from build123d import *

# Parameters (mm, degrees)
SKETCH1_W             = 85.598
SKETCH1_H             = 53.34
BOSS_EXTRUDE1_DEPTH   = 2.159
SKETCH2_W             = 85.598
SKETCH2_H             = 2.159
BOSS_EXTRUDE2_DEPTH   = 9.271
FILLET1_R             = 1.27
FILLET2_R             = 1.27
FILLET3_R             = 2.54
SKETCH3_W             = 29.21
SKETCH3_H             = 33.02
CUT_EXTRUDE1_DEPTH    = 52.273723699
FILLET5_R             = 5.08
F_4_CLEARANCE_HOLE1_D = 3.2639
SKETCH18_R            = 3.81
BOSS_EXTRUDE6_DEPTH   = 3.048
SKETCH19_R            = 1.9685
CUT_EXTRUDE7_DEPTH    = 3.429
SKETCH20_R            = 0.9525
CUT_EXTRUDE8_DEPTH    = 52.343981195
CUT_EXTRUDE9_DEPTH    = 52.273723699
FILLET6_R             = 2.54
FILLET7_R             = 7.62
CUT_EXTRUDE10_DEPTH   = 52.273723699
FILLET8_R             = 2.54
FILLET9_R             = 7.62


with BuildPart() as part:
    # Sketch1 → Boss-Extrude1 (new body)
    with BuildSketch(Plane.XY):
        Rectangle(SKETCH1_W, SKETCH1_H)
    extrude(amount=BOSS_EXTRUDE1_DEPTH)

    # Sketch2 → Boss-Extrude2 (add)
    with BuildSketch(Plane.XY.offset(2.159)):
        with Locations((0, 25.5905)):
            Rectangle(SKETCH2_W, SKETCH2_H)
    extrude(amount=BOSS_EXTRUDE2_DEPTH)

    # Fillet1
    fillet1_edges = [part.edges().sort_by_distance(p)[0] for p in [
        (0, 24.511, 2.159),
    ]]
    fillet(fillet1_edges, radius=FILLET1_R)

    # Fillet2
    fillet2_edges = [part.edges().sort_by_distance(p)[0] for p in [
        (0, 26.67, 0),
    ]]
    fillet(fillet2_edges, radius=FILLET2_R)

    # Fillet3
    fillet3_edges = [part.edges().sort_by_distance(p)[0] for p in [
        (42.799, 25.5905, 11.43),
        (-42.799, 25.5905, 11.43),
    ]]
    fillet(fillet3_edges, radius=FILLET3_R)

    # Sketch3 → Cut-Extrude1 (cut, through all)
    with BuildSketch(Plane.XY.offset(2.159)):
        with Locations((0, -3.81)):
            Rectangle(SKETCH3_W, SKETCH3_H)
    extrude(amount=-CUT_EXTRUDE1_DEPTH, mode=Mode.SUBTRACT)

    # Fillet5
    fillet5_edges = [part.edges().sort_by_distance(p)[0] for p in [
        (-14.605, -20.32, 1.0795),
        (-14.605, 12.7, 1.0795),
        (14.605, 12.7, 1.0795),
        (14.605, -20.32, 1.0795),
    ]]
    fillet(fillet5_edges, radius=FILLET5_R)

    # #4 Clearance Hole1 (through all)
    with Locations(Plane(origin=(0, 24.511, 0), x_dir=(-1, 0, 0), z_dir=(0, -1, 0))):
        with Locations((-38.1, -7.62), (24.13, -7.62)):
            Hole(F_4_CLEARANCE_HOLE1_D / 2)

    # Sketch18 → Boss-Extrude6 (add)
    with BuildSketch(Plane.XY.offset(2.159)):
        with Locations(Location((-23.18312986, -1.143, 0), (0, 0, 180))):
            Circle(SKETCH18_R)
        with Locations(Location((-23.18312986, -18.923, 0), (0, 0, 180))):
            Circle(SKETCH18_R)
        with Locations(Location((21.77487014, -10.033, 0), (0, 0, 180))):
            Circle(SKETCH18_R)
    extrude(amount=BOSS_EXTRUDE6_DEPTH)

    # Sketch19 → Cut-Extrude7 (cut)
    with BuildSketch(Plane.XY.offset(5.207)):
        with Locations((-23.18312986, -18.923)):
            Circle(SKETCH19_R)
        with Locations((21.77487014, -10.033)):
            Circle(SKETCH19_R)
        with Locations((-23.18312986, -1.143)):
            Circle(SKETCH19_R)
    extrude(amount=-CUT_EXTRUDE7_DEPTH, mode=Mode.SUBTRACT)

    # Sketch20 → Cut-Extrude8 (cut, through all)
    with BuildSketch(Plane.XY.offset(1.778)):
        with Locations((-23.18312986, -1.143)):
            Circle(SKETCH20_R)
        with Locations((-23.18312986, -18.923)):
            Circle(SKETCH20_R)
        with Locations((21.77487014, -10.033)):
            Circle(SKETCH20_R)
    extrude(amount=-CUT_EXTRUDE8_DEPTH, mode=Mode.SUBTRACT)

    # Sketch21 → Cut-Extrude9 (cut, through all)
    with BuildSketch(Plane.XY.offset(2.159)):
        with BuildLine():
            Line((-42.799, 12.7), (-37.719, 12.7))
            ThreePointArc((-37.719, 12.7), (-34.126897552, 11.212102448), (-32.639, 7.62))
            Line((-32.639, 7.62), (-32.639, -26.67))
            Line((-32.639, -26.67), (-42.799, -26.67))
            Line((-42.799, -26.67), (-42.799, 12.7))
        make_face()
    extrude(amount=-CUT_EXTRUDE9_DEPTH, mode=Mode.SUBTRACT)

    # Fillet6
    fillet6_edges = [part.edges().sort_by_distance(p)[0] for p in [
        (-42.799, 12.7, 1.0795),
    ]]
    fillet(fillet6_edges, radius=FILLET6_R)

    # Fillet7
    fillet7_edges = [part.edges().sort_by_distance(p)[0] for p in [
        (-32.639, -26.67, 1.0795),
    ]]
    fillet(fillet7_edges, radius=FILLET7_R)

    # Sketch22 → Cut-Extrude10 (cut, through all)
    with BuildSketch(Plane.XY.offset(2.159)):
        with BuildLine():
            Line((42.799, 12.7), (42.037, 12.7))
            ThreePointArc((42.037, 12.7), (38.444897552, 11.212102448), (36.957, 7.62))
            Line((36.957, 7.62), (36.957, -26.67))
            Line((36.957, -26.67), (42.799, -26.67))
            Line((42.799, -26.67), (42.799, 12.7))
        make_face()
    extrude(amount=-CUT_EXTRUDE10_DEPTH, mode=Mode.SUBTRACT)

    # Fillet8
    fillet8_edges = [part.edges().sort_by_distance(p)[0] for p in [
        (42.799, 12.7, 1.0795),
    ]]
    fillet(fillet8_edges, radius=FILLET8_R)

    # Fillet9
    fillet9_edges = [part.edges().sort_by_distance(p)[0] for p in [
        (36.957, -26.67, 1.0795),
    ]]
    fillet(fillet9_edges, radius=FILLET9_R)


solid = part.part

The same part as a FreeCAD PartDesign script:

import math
import FreeCAD as App
import Part
import Sketcher
from FreeCAD import Vector
Q = App.Units.Quantity


def edges_at(feature, points):
    """Names of the edges that pass closest to the given points."""
    edges = feature.Shape.Edges
    near = lambda p: min(range(len(edges)), key=lambda i: edges[i].distToShape(Part.Vertex(*p))[0])
    return sorted({f"Edge{near(p) + 1}" for p in points})


def add_polygon(sketch, points):
    """Adds a closed chain of lines whose ends are joined by coincident constraints."""
    first, n = sketch.GeometryCount, len(points)
    for a, b in zip(points, points[1:] + points[:1]):
        sketch.addGeometry(Part.LineSegment(App.Vector(*a, 0), App.Vector(*b, 0)), False)
    for i in range(n):
        sketch.addConstraint(Sketcher.Constraint("Coincident", first + i, 2, first + (i + 1) % n, 1))

doc = App.newDocument("Part")
body = doc.addObject("PartDesign::Body", "Body")

# Sketch on XY plane
sketch1 = body.newObject("Sketcher::SketchObject", "Sketch")
sketch1.AttachmentSupport = (doc.getObject("XY_Plane"), [""])
sketch1.MapMode = "FlatFace"
add_polygon(sketch1, [(-43, 27), (-43, -27), (43, -27), (43, 27)])  # lines 0-3
sketch1.addConstraint([
    Sketcher.Constraint("Vertical", 0),
    Sketcher.Constraint("Horizontal", 1),
    Sketcher.Constraint("Vertical", 2),
    Sketcher.Constraint("Horizontal", 3),
    Sketcher.Constraint("Symmetric", 0, 2, 2, 2, -1, 1),
    Sketcher.Constraint("DistanceY", 0, 2, 0, 1, Q("2.1 in")),
    Sketcher.Constraint("DistanceX", 1, 1, 1, 2, Q("3.37 in")),
])
pad1 = body.newObject("PartDesign::Pad", "Pad")
pad1.Profile = sketch1
pad1.Length = Q("0.085 in")

# Sketch on XY plane
sketch2 = body.newObject("Sketcher::SketchObject", "Sketch001")
sketch2.AttachmentSupport = (doc.getObject("XY_Plane"), [""])
sketch2.MapMode = "FlatFace"
sketch2.AttachmentOffset = App.Placement(Vector(0, 0, 0.085 * 25.4), App.Rotation())
add_polygon(sketch2, [(-42.8, 26.7), (-42.8, 24.5), (42.8, 24.5), (42.8, 26.7)])  # lines 0-3
sketch2.addConstraint([
    Sketcher.Constraint("Vertical", 0),
    Sketcher.Constraint("Horizontal", 1),
    Sketcher.Constraint("Vertical", 2),
    Sketcher.Constraint("Horizontal", 3),
    Sketcher.Constraint("DistanceX", 1, 1, 1, 2, Q("3.37 in")),
    Sketcher.Constraint("DistanceY", 0, 2, 0, 1, Q("0.085 in")),
    Sketcher.Constraint("DistanceY", -1, 1, 2, 2, Q("1.05 in")),
    Sketcher.Constraint("DistanceX", 0, 2, -1, 1, Q("1.685 in")),
])
pad2 = body.newObject("PartDesign::Pad", "Pad001")
pad2.Profile = sketch2
pad2.Length = Q("0.365 in")
doc.recompute()

fillet = body.newObject("PartDesign::Fillet", "Fillet")
fillet.Base = (pad2, edges_at(pad2, [(0, 24.511, 2.159)]))
fillet.Radius = Q("0.05 in")
doc.recompute()

fillet2 = body.newObject("PartDesign::Fillet", "Fillet001")
fillet2.Base = (fillet, edges_at(fillet, [(0, 26.67, 0)]))
fillet2.Radius = Q("0.05 in")
doc.recompute()

fillet3 = body.newObject("PartDesign::Fillet", "Fillet002")
fillet3.Base = (fillet2, edges_at(fillet2, [(42.799, 25.59, 11.43), (-42.799, 25.59, 11.43)]))
fillet3.Radius = Q("0.1 in")

# Sketch on XY plane
sketch3 = body.newObject("Sketcher::SketchObject", "Sketch002")
sketch3.AttachmentSupport = (doc.getObject("XY_Plane"), [""])
sketch3.MapMode = "FlatFace"
sketch3.AttachmentOffset = App.Placement(Vector(0, 0, 0.085 * 25.4), App.Rotation())
add_polygon(sketch3, [(-15, 13), (-15, -20), (15, -20), (15, 13)])  # lines 0-3
sketch3.addConstraint([
    Sketcher.Constraint("Vertical", 0),
    Sketcher.Constraint("Horizontal", 1),
    Sketcher.Constraint("Vertical", 2),
    Sketcher.Constraint("Horizontal", 3),
    Sketcher.Constraint("DistanceY", 0, 2, 0, 1, Q("1.3 in")),
    Sketcher.Constraint("DistanceX", 1, 1, 1, 2, Q("1.15 in")),
    Sketcher.Constraint("DistanceY", 0, 2, -1, 1, Q("0.8 in")),
    Sketcher.Constraint("DistanceX", 0, 2, -1, 1, Q("0.575 in")),
])
pocket1 = body.newObject("PartDesign::Pocket", "Pocket")
pocket1.Profile = sketch3
pocket1.Type = "ThroughAll"
doc.recompute()

fillet4 = body.newObject("PartDesign::Fillet", "Fillet003")
fillet4.Base = (pocket1, edges_at(pocket1, [
    (-14.605, -20.32, 1.079),
    (-14.605, 12.7, 1.079),
    (14.605, 12.7, 1.079),
    (14.605, -20.32, 1.079),
]))
fillet4.Radius = Q("0.2 in")

# Sketch on XZ plane
sketch4 = body.newObject("Sketcher::SketchObject", "Sketch003")
sketch4.AttachmentSupport = (doc.getObject("XZ_Plane"), [""])
sketch4.MapMode = "FlatFace"
sketch4.AttachmentOffset = App.Placement(Vector(0, 0, -0.965 * 25.4), App.Rotation())
sketch4.addGeometry([
    Part.Circle(Vector(38.1, 7.6, 0), Vector(0, 0, 1), 1.6),
    Part.Circle(Vector(-24.1, 7.6, 0), Vector(0, 0, 1), 1.6),
], False)
sketch4.addConstraint([
    Sketcher.Constraint("Equal", 0, 1),
    Sketcher.Constraint("Horizontal", 0, 3, 1, 3),
    Sketcher.Constraint("Diameter", 0, Q("0.1285 in")),
    Sketcher.Constraint("DistanceX", -1, 1, 0, 3, Q("1.5 in")),
    Sketcher.Constraint("DistanceY", -1, 1, 0, 3, Q("0.3 in")),
    Sketcher.Constraint("DistanceX", 1, 3, -1, 1, Q("0.95 in")),
])
doc.recompute()
hole = body.newObject("PartDesign::Hole", "Hole")
hole.Profile = sketch4
hole.ThreadType = "None"
hole.Diameter = Q("0.1285 in")
hole.DepthType = "ThroughAll"

# Sketch on XY plane
sketch5 = body.newObject("Sketcher::SketchObject", "Sketch004")
sketch5.AttachmentSupport = (doc.getObject("XY_Plane"), [""])
sketch5.MapMode = "FlatFace"
sketch5.AttachmentOffset = App.Placement(Vector(0, 0, 0.085 * 25.4), App.Rotation())
sketch5.addGeometry([
    Part.Circle(Vector(-23.2, -1.1, 0), Vector(0, 0, 1), 3.8),
    Part.Circle(Vector(-23.2, -18.9, 0), Vector(0, 0, 1), 3.8),
    Part.Circle(Vector(21.8, -10, 0), Vector(0, 0, 1), 3.8),
], False)
sketch5.addConstraint([
    Sketcher.Constraint("Equal", 0, 1),
    Sketcher.Constraint("Equal", 1, 2),
    Sketcher.Constraint("Vertical", 0, 3, 1, 3),
    Sketcher.Constraint("Diameter", 0, Q("0.3 in")),
    Sketcher.Constraint("DistanceY", 1, 3, 0, 3, Q("0.7 in")),
    Sketcher.Constraint("DistanceX", 0, 3, 2, 3, Q("1.77 in")),
    Sketcher.Constraint("DistanceY", 2, 3, 0, 3, Q("0.35 in")),
    Sketcher.Constraint("DistanceY", 0, 3, -1, 1, Q("0.045 in")),
    Sketcher.Constraint("DistanceX", 0, 3, -1, 1, 23.18313),
])
pad3 = body.newObject("PartDesign::Pad", "Pad002")
pad3.Profile = sketch5
pad3.Length = Q("0.12 in")

# Sketch on XY plane
sketch6 = body.newObject("Sketcher::SketchObject", "Sketch005")
sketch6.AttachmentSupport = (doc.getObject("XY_Plane"), [""])
sketch6.MapMode = "FlatFace"
sketch6.AttachmentOffset = App.Placement(Vector(0, 0, 0.205 * 25.4), App.Rotation())
sketch6.addGeometry([
    Part.Circle(Vector(-23.2, -18.9, 0), Vector(0, 0, 1), 2),
    Part.Circle(Vector(21.8, -10, 0), Vector(0, 0, 1), 2),
    Part.Circle(Vector(-23.2, -1.1, 0), Vector(0, 0, 1), 2),
], False)
sketch6.addConstraint([
    Sketcher.Constraint("Equal", 0, 1),
    Sketcher.Constraint("Equal", 1, 2),
    Sketcher.Constraint("Vertical", 0, 3, 2, 3),
    Sketcher.Constraint("Diameter", 0, Q("0.155 in")),
    Sketcher.Constraint("DistanceY", 0, 3, 2, 3, Q("0.7 in")),
    Sketcher.Constraint("DistanceX", 0, 3, 1, 3, Q("1.77 in")),
    Sketcher.Constraint("DistanceY", 0, 3, 1, 3, Q("0.35 in")),
    Sketcher.Constraint("DistanceY", 0, 3, -1, 1, Q("0.745 in")),
    Sketcher.Constraint("DistanceX", 0, 3, -1, 1, 23.18313),
])
pocket2 = body.newObject("PartDesign::Pocket", "Pocket001")
pocket2.Profile = sketch6
pocket2.Length = Q("0.135 in")

# Sketch on XY plane
sketch7 = body.newObject("Sketcher::SketchObject", "Sketch006")
sketch7.AttachmentSupport = (doc.getObject("XY_Plane"), [""])
sketch7.MapMode = "FlatFace"
sketch7.AttachmentOffset = App.Placement(Vector(0, 0, 0.07 * 25.4), App.Rotation())
sketch7.addGeometry([
    Part.Circle(Vector(-23.2, -1.1, 0), Vector(0, 0, 1), 1),
    Part.Circle(Vector(-23.2, -18.9, 0), Vector(0, 0, 1), 1),
    Part.Circle(Vector(21.8, -10, 0), Vector(0, 0, 1), 1),
], False)
sketch7.addConstraint([
    Sketcher.Constraint("Equal", 0, 1),
    Sketcher.Constraint("Equal", 1, 2),
    Sketcher.Constraint("Vertical", 0, 3, 1, 3),
    Sketcher.Constraint("Diameter", 0, Q("0.075 in")),
    Sketcher.Constraint("DistanceY", 1, 3, 0, 3, Q("0.7 in")),
    Sketcher.Constraint("DistanceX", 0, 3, 2, 3, Q("1.77 in")),
    Sketcher.Constraint("DistanceY", 2, 3, 0, 3, Q("0.35 in")),
    Sketcher.Constraint("DistanceY", 0, 3, -1, 1, Q("0.045 in")),
    Sketcher.Constraint("DistanceX", 0, 3, -1, 1, 23.18313),
])
pocket3 = body.newObject("PartDesign::Pocket", "Pocket002")
pocket3.Profile = sketch7
pocket3.Type = "ThroughAll"

# Sketch on XY plane
sketch8 = body.newObject("Sketcher::SketchObject", "Sketch007")
sketch8.AttachmentSupport = (doc.getObject("XY_Plane"), [""])
sketch8.MapMode = "FlatFace"
sketch8.AttachmentOffset = App.Placement(Vector(0, 0, 0.085 * 25.4), App.Rotation())
sketch8.addGeometry([
    Part.LineSegment(Vector(-38, 13, 0), Vector(-43, 13, 0)),  # 0
    Part.LineSegment(Vector(-43, 13, 0), Vector(-43, -27, 0)),  # 1
    Part.LineSegment(Vector(-43, -27, 0), Vector(-33, -27, 0)),  # 2
    Part.LineSegment(Vector(-33, -27, 0), Vector(-33, 8, 0)),  # 3
    Part.ArcOfCircle(Part.Circle(Vector(-38, 8, 0), Vector(0, 0, 1), 5), math.radians(0), math.radians(90)),  # 4
], False)
sketch8.addConstraint([
    Sketcher.Constraint("Coincident", 0, 2, 1, 1),
    Sketcher.Constraint("Coincident", 1, 2, 2, 1),
    Sketcher.Constraint("Coincident", 2, 2, 3, 1),
    Sketcher.Constraint("Tangent", 3, 2, 4, 1),
    Sketcher.Constraint("Tangent", 4, 2, 0, 1),
    Sketcher.Constraint("Horizontal", 0),
    Sketcher.Constraint("Vertical", 1),
    Sketcher.Constraint("Horizontal", 2),
    Sketcher.Constraint("Vertical", 3),
    Sketcher.Constraint("Radius", 4, Q("0.2 in")),
    Sketcher.Constraint("DistanceX", 0, 2, 0, 1, Q("0.2 in")),
    Sketcher.Constraint("DistanceY", 1, 2, 1, 1, Q("1.55 in")),
    Sketcher.Constraint("DistanceY", -1, 1, 4, 3, Q("0.3 in")),
    Sketcher.Constraint("DistanceX", 4, 3, -1, 1, Q("1.485 in")),
])
pocket4 = body.newObject("PartDesign::Pocket", "Pocket003")
pocket4.Profile = sketch8
pocket4.Type = "ThroughAll"
doc.recompute()

fillet5 = body.newObject("PartDesign::Fillet", "Fillet004")
fillet5.Base = (pocket4, edges_at(pocket4, [(-42.799, 12.7, 1.079)]))
fillet5.Radius = Q("0.1 in")
doc.recompute()

fillet6 = body.newObject("PartDesign::Fillet", "Fillet005")
fillet6.Base = (fillet5, edges_at(fillet5, [(-32.639, -26.67, 1.079)]))
fillet6.Radius = Q("0.3 in")

# Sketch on XY plane
sketch9 = body.newObject("Sketcher::SketchObject", "Sketch008")
sketch9.AttachmentSupport = (doc.getObject("XY_Plane"), [""])
sketch9.MapMode = "FlatFace"
sketch9.AttachmentOffset = App.Placement(Vector(0, 0, 0.085 * 25.4), App.Rotation())
sketch9.addGeometry([
    Part.LineSegment(Vector(42.8, 12.7, 0), Vector(42, 12.7, 0)),  # 0
    Part.ArcOfCircle(Part.Circle(Vector(42, 7.6, 0), Vector(0, 0, 1), 5.1), math.radians(90), math.radians(180)),  # 1
    Part.LineSegment(Vector(37, 7.6, 0), Vector(37, -26.7, 0)),  # 2
    Part.LineSegment(Vector(37, -26.7, 0), Vector(42.8, -26.7, 0)),  # 3
    Part.LineSegment(Vector(42.8, -26.7, 0), Vector(42.8, 12.7, 0)),  # 4
], False)
sketch9.addConstraint([
    Sketcher.Constraint("Tangent", 0, 2, 1, 1),
    Sketcher.Constraint("Tangent", 1, 2, 2, 1),
    Sketcher.Constraint("Coincident", 2, 2, 3, 1),
    Sketcher.Constraint("Coincident", 3, 2, 4, 1),
    Sketcher.Constraint("Coincident", 4, 2, 0, 1),
    Sketcher.Constraint("Horizontal", 0),
    Sketcher.Constraint("Vertical", 2),
    Sketcher.Constraint("Horizontal", 3),
    Sketcher.Constraint("Vertical", 4),
    Sketcher.Constraint("Radius", 1, Q("0.2 in")),
    Sketcher.Constraint("DistanceX", 0, 2, 0, 1, Q("0.03 in")),
    Sketcher.Constraint("DistanceY", 2, 2, 2, 1, Q("1.35 in")),
    Sketcher.Constraint("DistanceY", -1, 1, 1, 3, Q("0.3 in")),
    Sketcher.Constraint("DistanceX", -1, 1, 1, 3, Q("1.655 in")),
])
pocket5 = body.newObject("PartDesign::Pocket", "Pocket004")
pocket5.Profile = sketch9
pocket5.Type = "ThroughAll"
doc.recompute()

fillet7 = body.newObject("PartDesign::Fillet", "Fillet006")
fillet7.Base = (pocket5, edges_at(pocket5, [(42.799, 12.7, 1.079)]))
fillet7.Radius = Q("0.1 in")
doc.recompute()

fillet8 = body.newObject("PartDesign::Fillet", "Fillet007")
fillet8.Base = (fillet7, edges_at(fillet7, [(36.957, -26.67, 1.079)]))
fillet8.Radius = Q("0.3 in")

doc.recompute()
